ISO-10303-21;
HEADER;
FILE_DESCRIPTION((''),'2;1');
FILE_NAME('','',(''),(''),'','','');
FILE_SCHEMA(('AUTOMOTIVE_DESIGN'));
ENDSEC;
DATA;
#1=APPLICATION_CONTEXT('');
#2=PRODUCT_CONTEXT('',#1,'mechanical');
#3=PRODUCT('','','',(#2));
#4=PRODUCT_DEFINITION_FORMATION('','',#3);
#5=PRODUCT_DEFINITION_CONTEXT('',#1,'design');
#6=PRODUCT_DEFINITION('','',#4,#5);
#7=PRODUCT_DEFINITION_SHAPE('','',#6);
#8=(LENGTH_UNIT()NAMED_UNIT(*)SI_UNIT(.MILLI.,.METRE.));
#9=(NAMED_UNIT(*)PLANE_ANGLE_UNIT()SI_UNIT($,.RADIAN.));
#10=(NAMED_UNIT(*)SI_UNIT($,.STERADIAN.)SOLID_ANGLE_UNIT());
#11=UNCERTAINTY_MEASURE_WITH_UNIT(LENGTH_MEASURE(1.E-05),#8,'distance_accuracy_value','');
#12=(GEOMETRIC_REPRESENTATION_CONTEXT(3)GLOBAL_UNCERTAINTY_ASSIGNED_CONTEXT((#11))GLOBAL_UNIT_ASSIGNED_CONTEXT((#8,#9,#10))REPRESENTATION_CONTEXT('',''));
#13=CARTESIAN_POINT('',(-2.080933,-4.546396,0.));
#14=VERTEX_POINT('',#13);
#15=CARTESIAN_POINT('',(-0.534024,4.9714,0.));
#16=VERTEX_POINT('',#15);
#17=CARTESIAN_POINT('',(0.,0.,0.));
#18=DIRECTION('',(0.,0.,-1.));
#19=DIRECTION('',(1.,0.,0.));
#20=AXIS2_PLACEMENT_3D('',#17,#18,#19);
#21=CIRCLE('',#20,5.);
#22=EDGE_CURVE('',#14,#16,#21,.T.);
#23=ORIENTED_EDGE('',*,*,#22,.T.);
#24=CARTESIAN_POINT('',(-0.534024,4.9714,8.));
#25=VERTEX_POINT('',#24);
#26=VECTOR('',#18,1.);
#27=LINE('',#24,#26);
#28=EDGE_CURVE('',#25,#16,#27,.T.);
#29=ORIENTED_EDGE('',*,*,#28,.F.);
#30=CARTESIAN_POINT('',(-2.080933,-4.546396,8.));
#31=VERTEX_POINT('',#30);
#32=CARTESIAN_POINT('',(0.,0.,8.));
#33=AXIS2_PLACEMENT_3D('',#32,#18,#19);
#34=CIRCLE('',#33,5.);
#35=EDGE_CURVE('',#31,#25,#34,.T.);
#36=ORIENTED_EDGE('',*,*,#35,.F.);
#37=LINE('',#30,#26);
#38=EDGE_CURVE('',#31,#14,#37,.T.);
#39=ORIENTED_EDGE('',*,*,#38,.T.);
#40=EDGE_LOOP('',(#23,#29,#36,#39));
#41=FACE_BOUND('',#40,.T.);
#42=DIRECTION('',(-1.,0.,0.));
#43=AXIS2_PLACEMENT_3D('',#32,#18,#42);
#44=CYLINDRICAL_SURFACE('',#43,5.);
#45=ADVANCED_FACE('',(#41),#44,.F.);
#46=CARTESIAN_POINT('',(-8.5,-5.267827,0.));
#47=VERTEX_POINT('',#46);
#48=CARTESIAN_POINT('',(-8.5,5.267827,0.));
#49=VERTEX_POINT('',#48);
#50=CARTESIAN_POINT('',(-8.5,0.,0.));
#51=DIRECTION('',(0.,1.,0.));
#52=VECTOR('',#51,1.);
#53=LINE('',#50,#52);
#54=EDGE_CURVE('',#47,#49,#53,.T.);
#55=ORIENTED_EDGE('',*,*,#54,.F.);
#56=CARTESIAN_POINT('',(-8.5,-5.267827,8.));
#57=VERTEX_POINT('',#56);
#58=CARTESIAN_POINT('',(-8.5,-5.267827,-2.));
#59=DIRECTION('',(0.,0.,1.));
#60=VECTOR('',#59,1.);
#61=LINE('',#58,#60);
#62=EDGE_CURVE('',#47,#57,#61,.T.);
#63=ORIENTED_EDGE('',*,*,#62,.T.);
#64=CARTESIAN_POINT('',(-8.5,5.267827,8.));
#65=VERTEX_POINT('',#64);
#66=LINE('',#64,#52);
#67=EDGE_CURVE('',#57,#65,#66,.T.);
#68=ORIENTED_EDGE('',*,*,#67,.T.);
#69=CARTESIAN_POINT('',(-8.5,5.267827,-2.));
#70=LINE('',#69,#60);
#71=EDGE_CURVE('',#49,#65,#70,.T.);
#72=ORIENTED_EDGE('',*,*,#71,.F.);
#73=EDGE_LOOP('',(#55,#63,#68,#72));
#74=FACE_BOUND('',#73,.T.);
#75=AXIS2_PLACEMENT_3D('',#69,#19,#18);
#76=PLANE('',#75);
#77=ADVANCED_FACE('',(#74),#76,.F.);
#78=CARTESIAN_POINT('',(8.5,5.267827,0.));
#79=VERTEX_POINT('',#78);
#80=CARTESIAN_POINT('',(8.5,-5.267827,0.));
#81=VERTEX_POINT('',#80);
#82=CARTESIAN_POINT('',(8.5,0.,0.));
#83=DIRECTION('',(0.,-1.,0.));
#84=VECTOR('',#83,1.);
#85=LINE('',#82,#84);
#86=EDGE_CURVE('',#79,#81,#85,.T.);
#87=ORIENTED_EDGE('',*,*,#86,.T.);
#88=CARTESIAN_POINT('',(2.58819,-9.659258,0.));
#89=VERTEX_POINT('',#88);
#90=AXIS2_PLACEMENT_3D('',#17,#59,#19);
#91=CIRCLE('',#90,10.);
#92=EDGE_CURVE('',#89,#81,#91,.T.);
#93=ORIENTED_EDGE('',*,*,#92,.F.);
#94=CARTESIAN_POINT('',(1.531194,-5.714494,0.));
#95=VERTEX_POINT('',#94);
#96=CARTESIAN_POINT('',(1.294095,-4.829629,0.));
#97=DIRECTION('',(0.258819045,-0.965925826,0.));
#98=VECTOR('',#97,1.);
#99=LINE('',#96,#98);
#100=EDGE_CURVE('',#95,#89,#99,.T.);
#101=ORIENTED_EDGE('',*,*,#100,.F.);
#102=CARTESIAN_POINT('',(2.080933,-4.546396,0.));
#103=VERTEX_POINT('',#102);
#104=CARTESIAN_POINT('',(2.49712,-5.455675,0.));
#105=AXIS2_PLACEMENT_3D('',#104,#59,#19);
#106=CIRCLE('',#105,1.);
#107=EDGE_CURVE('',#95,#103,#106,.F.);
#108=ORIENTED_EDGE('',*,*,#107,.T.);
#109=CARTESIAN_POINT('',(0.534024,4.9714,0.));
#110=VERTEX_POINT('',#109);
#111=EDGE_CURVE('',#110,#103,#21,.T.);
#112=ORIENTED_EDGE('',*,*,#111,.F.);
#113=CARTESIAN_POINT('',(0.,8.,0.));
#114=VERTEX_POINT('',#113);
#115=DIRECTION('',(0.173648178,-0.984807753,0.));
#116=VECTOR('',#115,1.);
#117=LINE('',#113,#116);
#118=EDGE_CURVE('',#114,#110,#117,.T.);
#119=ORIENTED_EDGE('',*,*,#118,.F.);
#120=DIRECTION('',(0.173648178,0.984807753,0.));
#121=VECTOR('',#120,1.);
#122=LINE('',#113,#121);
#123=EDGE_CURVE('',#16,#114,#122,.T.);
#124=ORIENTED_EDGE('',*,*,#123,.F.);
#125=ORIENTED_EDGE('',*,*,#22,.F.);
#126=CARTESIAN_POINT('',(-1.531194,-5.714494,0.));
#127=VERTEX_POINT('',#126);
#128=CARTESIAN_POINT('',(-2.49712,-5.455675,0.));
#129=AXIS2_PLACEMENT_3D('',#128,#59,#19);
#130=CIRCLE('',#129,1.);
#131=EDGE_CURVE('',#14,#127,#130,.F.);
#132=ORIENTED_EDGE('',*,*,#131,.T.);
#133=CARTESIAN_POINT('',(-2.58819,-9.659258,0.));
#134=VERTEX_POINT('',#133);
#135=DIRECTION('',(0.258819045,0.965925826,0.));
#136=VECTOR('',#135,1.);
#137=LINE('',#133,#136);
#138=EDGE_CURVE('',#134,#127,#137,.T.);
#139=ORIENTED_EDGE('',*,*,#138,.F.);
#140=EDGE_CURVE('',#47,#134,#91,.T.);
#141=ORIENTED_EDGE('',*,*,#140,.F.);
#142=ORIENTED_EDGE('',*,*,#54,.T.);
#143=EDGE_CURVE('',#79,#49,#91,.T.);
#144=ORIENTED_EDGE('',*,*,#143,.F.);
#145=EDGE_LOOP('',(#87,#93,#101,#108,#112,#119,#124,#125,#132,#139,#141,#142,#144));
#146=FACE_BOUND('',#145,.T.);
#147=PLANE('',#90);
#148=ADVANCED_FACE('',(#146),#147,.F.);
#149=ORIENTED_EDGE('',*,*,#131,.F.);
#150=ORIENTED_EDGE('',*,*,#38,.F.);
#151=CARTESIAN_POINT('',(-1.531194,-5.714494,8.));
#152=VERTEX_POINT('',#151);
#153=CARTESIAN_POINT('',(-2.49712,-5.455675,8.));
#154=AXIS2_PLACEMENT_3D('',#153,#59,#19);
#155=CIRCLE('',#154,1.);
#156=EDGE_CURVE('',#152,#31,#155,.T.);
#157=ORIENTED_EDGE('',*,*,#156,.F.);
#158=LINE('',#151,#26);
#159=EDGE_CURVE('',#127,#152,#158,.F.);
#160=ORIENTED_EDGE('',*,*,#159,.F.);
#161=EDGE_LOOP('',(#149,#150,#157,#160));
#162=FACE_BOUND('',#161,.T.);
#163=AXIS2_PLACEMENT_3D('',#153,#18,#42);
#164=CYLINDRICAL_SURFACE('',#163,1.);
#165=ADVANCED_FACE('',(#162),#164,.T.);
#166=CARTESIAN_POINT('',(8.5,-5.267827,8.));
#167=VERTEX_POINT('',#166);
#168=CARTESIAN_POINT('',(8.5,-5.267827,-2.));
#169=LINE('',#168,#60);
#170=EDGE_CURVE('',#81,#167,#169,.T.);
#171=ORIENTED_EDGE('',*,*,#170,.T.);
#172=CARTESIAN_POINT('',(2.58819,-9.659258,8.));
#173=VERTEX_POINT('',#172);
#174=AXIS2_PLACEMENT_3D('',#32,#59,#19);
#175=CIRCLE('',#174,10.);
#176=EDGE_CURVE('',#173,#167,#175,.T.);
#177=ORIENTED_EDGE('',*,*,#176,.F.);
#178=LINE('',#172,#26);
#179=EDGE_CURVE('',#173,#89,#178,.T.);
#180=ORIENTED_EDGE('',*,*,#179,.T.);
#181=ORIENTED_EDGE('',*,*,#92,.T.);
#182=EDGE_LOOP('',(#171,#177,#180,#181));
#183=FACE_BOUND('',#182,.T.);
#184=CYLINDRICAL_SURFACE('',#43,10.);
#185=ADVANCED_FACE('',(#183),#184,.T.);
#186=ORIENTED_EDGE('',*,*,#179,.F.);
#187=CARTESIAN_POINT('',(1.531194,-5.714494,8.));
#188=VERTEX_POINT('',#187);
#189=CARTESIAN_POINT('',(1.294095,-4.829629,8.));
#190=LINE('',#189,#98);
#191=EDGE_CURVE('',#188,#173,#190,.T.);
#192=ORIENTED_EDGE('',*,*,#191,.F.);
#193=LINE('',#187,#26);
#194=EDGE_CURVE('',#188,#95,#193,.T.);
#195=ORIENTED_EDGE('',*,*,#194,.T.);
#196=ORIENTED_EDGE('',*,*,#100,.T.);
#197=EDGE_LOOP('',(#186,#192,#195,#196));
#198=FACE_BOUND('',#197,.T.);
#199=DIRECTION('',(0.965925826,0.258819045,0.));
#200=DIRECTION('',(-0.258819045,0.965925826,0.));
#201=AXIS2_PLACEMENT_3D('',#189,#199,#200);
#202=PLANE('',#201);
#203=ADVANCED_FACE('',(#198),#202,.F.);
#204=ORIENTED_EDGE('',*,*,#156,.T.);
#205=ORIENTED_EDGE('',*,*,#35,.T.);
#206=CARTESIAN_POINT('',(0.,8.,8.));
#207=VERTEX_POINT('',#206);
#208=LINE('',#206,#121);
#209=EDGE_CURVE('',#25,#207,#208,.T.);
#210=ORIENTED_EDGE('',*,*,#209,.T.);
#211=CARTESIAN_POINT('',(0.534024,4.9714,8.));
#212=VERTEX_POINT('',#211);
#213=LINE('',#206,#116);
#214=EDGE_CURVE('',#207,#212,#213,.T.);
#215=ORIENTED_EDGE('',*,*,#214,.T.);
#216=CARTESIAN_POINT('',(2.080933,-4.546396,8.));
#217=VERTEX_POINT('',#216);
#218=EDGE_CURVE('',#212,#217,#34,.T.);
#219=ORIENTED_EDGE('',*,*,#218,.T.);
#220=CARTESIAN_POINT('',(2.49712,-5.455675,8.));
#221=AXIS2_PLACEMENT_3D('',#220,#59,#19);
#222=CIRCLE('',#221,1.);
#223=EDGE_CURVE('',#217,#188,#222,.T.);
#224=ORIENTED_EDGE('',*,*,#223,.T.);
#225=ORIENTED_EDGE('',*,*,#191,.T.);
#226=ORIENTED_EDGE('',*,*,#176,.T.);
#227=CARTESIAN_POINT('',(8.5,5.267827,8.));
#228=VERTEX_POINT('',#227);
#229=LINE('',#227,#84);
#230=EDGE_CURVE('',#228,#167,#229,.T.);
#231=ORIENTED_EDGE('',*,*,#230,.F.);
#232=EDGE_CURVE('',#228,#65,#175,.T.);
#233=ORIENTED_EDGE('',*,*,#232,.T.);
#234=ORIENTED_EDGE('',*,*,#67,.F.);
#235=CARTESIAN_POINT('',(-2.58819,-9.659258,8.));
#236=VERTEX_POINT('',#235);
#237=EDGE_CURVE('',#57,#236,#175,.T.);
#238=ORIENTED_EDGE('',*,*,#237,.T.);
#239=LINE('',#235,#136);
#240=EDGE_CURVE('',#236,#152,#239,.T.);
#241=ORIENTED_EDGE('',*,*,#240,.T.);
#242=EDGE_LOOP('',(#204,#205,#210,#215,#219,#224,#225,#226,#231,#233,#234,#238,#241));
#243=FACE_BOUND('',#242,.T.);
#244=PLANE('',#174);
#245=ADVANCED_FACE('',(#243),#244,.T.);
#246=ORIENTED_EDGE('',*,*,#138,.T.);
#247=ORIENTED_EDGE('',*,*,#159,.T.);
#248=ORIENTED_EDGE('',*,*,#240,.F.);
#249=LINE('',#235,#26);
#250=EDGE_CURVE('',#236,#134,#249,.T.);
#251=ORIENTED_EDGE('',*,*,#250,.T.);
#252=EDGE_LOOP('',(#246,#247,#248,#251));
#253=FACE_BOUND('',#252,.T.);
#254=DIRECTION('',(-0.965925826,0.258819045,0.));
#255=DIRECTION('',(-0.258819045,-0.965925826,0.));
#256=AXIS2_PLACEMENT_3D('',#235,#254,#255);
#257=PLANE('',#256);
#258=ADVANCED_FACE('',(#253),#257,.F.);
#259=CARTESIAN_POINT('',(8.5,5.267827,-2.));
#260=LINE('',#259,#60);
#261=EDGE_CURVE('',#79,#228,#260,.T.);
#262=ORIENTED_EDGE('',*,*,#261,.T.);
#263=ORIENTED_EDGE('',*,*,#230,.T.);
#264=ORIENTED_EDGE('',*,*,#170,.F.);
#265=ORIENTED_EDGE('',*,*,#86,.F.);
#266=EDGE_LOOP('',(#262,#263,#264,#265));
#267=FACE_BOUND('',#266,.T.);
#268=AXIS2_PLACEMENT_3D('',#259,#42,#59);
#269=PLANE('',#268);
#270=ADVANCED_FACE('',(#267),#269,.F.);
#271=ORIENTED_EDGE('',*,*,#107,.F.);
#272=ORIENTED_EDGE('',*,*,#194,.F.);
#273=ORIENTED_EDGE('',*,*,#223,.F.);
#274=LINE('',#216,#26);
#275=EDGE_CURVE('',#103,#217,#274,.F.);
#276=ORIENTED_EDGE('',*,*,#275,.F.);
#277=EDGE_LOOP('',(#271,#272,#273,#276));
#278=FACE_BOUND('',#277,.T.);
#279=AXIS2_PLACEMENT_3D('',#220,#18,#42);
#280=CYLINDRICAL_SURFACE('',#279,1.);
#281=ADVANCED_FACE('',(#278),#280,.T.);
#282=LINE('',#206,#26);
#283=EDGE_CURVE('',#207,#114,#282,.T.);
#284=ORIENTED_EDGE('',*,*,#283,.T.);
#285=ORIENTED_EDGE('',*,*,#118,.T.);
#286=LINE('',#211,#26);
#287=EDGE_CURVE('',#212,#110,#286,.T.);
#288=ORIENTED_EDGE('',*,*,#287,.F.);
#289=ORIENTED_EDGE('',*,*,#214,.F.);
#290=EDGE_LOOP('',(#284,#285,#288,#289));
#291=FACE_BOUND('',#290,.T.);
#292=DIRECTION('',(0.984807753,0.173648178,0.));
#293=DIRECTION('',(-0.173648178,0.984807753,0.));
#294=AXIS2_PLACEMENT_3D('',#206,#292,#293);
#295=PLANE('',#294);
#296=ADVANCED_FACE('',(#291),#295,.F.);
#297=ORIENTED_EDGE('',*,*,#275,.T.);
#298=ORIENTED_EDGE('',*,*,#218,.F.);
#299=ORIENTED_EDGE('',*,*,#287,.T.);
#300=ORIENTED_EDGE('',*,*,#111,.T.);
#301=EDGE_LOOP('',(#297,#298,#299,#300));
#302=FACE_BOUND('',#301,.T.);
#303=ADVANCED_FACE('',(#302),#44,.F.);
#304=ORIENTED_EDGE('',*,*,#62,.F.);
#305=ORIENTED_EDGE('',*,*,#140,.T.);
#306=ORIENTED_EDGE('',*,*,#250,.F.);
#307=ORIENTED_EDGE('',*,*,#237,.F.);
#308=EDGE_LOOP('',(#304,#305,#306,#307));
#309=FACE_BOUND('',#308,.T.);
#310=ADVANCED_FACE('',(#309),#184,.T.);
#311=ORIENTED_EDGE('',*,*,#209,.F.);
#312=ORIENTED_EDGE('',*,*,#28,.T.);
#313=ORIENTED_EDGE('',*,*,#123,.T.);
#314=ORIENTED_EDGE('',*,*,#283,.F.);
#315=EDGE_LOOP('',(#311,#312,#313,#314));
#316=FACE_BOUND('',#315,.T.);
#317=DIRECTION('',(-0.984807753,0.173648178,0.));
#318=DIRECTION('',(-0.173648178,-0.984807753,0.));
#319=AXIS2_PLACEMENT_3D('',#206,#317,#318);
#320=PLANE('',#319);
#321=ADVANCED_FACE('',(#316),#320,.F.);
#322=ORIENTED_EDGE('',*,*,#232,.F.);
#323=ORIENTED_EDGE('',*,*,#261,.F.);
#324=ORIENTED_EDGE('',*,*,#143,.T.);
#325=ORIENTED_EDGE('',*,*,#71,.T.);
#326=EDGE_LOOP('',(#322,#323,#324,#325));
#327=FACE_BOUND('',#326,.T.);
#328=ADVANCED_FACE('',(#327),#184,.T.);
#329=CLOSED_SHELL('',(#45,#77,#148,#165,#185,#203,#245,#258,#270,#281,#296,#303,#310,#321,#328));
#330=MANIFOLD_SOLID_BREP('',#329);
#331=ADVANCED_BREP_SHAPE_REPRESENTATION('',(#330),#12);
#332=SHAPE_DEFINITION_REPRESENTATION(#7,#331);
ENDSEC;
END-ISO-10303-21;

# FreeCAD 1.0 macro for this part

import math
import FreeCAD as App
import Part
import Sketcher
Q = App.Units.Quantity


def edges_at(feature, points):
    """Names of the edges that pass closest to the given points."""
    edges = feature.Shape.Edges
    near = lambda p: min(range(len(edges)), key=lambda i: edges[i].distToShape(Part.Vertex(*p))[0])
    return sorted({f"Edge{near(p) + 1}" for p in points})

doc = App.newDocument("Part")
params = doc.addObject("Spreadsheet::Sheet", "Params")
for row, (alias, value) in enumerate([
    ("sketch1_radius", "10 mm"),
    ("sketch1_radius2", "5 mm"),
    ("pad1_length", "8 mm"),
    ("fillet_radius", "1 mm"),
    ("sketch2_radius", "10 mm"),
    ("pocket1_length", "10 mm"),
    ("sketch3_radius", "5 mm"),
], start=1):
    params.set(f"A{row}", alias)
    params.set(f"B{row}", "=" + value)
    params.setAlias(f"B{row}", alias)

body = doc.addObject("PartDesign::Body", "Body")

# Sketch on XY plane
sketch1 = body.newObject("Sketcher::SketchObject", "Sketch")
sketch1.AttachmentSupport = (doc.getObject("XY_Plane"), [""])
sketch1.MapMode = "FlatFace"
sketch1.addGeometry([
    Part.LineSegment(App.Vector(1.3, -4.8, 0), App.Vector(2.6, -9.7, 0)),
    Part.ArcOfCircle(Part.Circle(App.Vector(0, 0, 0), App.Vector(0, 0, 1), 10), math.radians(-75), math.radians(255)),
    Part.LineSegment(App.Vector(-2.6, -9.7, 0), App.Vector(-1.3, -4.8, 0)),
    Part.ArcOfCircle(Part.Circle(App.Vector(0, 0, 0), App.Vector(0, 0, 1), 5), math.radians(-75), math.radians(255)),
], False)
sketch1.addConstraint([
    Sketcher.Constraint("Coincident", 0, 2, 1, 1),
    Sketcher.Constraint("Coincident", 1, 2, 2, 1),
    Sketcher.Constraint("Coincident", 2, 2, 3, 2),
    Sketcher.Constraint("Coincident", 3, 1, 0, 1),
    Sketcher.Constraint("Coincident", 1, 3, -1, 1),
    Sketcher.Constraint("Coincident", 3, 3, -1, 1),
    Sketcher.Constraint("Horizontal", 0, 2, 1, 2),
    Sketcher.Constraint("Horizontal", 2, 2, 3, 1),
    Sketcher.Constraint("Radius", 1, Q("10 mm")),
    Sketcher.Constraint("Radius", 3, Q("5 mm")),
    Sketcher.Constraint("Angle", 0, Q("-75 deg")),
    Sketcher.Constraint("DistanceX", -1, 1, 0, 2, Q("2.58819 mm")),
])
sketch1.setExpression("Constraints[8]", "Params.sketch1_radius")
sketch1.setExpression("Constraints[9]", "Params.sketch1_radius2")
pad1 = body.newObject("PartDesign::Pad", "Pad")
pad1.Profile = sketch1
pad1.setExpression("Length", "Params.pad1_length")
doc.recompute()

fillet = body.newObject("PartDesign::Fillet", "Fillet")
fillet.Base = (pad1, edges_at(pad1, [(-1.294, -4.83, 4), (1.294, -4.83, 4)]))
fillet.setExpression("Radius", "Params.fillet_radius")

# Sketch on XY plane
sketch2 = body.newObject("Sketcher::SketchObject", "Sketch001")
sketch2.AttachmentSupport = (doc.getObject("XY_Plane"), [""])
sketch2.MapMode = "FlatFace"
sketch2.AttachmentOffset = App.Placement(App.Vector(0, 0, -2), App.Rotation())
sketch2.addGeometry([
    Part.LineSegment(App.Vector(-8, -5, 0), App.Vector(-8, 5, 0)),
    Part.ArcOfCircle(Part.Circle(App.Vector(0, 0, 0), App.Vector(0, 0, 1), 10), math.radians(148), math.radians(212)),
    Part.LineSegment(App.Vector(8, 5, 0), App.Vector(8, -5, 0)),
    Part.ArcOfCircle(Part.Circle(App.Vector(0, 0, 0), App.Vector(0, 0, 1), 10), math.radians(-32), math.radians(32)),
], False)
sketch2.addConstraint([
    Sketcher.Constraint("Coincident", 0, 1, 1, 2),
    Sketcher.Constraint("Coincident", 1, 1, 0, 2),
    Sketcher.Constraint("Coincident", 2, 1, 3, 2),
    Sketcher.Constraint("Coincident", 3, 1, 2, 2),
    Sketcher.Constraint("Vertical", 0),
    Sketcher.Constraint("Vertical", 2),
    Sketcher.Constraint("Coincident", 1, 3, -1, 1),
    Sketcher.Constraint("Coincident", 3, 3, -1, 1),
    Sketcher.Constraint("Equal", 1, 3),
    Sketcher.Constraint("Horizontal", 1, 1, 2, 1),
    Sketcher.Constraint("Radius", 1, Q("10 mm")),
    Sketcher.Constraint("DistanceX", 1, 1, 2, 1, Q("17 mm")),
])
sketch2.setExpression("Constraints[10]", "Params.sketch2_radius")
pocket1 = body.newObject("PartDesign::Pocket", "Pocket")
pocket1.Profile = sketch2
pocket1.setExpression("Length", "Params.pocket1_length")
pocket1.Reversed = True

# Sketch on XY plane
sketch3 = body.newObject("Sketcher::SketchObject", "Sketch002")
sketch3.AttachmentSupport = (doc.getObject("XY_Plane"), [""])
sketch3.MapMode = "FlatFace"
sketch3.addGeometry([
    Part.LineSegment(App.Vector(0, 8, 0), App.Vector(0.5, 5, 0)),
    Part.ArcOfCircle(Part.Circle(App.Vector(0, 0, 0), App.Vector(0, 0, 1), 5), math.radians(83.87), math.radians(96.13)),
    Part.LineSegment(App.Vector(-0.5, 5, 0), App.Vector(0, 8, 0)),
], False)
sketch3.addConstraint([
    Sketcher.Constraint("Coincident", 0, 2, 1, 1),
    Sketcher.Constraint("Coincident", 1, 2, 2, 1),
    Sketcher.Constraint("Coincident", 2, 2, 0, 1),
    Sketcher.Constraint("Coincident", 1, 3, -1, 1),
    Sketcher.Constraint("PointOnObject", 2, 2, -2),
    Sketcher.Constraint("Horizontal", 0, 2, 1, 2),
    Sketcher.Constraint("Radius", 1, Q("5 mm")),
    Sketcher.Constraint("Angle", 0, Q("-80 deg")),
    Sketcher.Constraint("DistanceY", -1, 1, 2, 2, Q("8 mm")),
])
sketch3.setExpression("Constraints[6]", "Params.sketch3_radius")
pocket2 = body.newObject("PartDesign::Pocket", "Pocket001")
pocket2.Profile = sketch3
pocket2.Type = "ThroughAll"
pocket2.Reversed = True

doc.recompute()
